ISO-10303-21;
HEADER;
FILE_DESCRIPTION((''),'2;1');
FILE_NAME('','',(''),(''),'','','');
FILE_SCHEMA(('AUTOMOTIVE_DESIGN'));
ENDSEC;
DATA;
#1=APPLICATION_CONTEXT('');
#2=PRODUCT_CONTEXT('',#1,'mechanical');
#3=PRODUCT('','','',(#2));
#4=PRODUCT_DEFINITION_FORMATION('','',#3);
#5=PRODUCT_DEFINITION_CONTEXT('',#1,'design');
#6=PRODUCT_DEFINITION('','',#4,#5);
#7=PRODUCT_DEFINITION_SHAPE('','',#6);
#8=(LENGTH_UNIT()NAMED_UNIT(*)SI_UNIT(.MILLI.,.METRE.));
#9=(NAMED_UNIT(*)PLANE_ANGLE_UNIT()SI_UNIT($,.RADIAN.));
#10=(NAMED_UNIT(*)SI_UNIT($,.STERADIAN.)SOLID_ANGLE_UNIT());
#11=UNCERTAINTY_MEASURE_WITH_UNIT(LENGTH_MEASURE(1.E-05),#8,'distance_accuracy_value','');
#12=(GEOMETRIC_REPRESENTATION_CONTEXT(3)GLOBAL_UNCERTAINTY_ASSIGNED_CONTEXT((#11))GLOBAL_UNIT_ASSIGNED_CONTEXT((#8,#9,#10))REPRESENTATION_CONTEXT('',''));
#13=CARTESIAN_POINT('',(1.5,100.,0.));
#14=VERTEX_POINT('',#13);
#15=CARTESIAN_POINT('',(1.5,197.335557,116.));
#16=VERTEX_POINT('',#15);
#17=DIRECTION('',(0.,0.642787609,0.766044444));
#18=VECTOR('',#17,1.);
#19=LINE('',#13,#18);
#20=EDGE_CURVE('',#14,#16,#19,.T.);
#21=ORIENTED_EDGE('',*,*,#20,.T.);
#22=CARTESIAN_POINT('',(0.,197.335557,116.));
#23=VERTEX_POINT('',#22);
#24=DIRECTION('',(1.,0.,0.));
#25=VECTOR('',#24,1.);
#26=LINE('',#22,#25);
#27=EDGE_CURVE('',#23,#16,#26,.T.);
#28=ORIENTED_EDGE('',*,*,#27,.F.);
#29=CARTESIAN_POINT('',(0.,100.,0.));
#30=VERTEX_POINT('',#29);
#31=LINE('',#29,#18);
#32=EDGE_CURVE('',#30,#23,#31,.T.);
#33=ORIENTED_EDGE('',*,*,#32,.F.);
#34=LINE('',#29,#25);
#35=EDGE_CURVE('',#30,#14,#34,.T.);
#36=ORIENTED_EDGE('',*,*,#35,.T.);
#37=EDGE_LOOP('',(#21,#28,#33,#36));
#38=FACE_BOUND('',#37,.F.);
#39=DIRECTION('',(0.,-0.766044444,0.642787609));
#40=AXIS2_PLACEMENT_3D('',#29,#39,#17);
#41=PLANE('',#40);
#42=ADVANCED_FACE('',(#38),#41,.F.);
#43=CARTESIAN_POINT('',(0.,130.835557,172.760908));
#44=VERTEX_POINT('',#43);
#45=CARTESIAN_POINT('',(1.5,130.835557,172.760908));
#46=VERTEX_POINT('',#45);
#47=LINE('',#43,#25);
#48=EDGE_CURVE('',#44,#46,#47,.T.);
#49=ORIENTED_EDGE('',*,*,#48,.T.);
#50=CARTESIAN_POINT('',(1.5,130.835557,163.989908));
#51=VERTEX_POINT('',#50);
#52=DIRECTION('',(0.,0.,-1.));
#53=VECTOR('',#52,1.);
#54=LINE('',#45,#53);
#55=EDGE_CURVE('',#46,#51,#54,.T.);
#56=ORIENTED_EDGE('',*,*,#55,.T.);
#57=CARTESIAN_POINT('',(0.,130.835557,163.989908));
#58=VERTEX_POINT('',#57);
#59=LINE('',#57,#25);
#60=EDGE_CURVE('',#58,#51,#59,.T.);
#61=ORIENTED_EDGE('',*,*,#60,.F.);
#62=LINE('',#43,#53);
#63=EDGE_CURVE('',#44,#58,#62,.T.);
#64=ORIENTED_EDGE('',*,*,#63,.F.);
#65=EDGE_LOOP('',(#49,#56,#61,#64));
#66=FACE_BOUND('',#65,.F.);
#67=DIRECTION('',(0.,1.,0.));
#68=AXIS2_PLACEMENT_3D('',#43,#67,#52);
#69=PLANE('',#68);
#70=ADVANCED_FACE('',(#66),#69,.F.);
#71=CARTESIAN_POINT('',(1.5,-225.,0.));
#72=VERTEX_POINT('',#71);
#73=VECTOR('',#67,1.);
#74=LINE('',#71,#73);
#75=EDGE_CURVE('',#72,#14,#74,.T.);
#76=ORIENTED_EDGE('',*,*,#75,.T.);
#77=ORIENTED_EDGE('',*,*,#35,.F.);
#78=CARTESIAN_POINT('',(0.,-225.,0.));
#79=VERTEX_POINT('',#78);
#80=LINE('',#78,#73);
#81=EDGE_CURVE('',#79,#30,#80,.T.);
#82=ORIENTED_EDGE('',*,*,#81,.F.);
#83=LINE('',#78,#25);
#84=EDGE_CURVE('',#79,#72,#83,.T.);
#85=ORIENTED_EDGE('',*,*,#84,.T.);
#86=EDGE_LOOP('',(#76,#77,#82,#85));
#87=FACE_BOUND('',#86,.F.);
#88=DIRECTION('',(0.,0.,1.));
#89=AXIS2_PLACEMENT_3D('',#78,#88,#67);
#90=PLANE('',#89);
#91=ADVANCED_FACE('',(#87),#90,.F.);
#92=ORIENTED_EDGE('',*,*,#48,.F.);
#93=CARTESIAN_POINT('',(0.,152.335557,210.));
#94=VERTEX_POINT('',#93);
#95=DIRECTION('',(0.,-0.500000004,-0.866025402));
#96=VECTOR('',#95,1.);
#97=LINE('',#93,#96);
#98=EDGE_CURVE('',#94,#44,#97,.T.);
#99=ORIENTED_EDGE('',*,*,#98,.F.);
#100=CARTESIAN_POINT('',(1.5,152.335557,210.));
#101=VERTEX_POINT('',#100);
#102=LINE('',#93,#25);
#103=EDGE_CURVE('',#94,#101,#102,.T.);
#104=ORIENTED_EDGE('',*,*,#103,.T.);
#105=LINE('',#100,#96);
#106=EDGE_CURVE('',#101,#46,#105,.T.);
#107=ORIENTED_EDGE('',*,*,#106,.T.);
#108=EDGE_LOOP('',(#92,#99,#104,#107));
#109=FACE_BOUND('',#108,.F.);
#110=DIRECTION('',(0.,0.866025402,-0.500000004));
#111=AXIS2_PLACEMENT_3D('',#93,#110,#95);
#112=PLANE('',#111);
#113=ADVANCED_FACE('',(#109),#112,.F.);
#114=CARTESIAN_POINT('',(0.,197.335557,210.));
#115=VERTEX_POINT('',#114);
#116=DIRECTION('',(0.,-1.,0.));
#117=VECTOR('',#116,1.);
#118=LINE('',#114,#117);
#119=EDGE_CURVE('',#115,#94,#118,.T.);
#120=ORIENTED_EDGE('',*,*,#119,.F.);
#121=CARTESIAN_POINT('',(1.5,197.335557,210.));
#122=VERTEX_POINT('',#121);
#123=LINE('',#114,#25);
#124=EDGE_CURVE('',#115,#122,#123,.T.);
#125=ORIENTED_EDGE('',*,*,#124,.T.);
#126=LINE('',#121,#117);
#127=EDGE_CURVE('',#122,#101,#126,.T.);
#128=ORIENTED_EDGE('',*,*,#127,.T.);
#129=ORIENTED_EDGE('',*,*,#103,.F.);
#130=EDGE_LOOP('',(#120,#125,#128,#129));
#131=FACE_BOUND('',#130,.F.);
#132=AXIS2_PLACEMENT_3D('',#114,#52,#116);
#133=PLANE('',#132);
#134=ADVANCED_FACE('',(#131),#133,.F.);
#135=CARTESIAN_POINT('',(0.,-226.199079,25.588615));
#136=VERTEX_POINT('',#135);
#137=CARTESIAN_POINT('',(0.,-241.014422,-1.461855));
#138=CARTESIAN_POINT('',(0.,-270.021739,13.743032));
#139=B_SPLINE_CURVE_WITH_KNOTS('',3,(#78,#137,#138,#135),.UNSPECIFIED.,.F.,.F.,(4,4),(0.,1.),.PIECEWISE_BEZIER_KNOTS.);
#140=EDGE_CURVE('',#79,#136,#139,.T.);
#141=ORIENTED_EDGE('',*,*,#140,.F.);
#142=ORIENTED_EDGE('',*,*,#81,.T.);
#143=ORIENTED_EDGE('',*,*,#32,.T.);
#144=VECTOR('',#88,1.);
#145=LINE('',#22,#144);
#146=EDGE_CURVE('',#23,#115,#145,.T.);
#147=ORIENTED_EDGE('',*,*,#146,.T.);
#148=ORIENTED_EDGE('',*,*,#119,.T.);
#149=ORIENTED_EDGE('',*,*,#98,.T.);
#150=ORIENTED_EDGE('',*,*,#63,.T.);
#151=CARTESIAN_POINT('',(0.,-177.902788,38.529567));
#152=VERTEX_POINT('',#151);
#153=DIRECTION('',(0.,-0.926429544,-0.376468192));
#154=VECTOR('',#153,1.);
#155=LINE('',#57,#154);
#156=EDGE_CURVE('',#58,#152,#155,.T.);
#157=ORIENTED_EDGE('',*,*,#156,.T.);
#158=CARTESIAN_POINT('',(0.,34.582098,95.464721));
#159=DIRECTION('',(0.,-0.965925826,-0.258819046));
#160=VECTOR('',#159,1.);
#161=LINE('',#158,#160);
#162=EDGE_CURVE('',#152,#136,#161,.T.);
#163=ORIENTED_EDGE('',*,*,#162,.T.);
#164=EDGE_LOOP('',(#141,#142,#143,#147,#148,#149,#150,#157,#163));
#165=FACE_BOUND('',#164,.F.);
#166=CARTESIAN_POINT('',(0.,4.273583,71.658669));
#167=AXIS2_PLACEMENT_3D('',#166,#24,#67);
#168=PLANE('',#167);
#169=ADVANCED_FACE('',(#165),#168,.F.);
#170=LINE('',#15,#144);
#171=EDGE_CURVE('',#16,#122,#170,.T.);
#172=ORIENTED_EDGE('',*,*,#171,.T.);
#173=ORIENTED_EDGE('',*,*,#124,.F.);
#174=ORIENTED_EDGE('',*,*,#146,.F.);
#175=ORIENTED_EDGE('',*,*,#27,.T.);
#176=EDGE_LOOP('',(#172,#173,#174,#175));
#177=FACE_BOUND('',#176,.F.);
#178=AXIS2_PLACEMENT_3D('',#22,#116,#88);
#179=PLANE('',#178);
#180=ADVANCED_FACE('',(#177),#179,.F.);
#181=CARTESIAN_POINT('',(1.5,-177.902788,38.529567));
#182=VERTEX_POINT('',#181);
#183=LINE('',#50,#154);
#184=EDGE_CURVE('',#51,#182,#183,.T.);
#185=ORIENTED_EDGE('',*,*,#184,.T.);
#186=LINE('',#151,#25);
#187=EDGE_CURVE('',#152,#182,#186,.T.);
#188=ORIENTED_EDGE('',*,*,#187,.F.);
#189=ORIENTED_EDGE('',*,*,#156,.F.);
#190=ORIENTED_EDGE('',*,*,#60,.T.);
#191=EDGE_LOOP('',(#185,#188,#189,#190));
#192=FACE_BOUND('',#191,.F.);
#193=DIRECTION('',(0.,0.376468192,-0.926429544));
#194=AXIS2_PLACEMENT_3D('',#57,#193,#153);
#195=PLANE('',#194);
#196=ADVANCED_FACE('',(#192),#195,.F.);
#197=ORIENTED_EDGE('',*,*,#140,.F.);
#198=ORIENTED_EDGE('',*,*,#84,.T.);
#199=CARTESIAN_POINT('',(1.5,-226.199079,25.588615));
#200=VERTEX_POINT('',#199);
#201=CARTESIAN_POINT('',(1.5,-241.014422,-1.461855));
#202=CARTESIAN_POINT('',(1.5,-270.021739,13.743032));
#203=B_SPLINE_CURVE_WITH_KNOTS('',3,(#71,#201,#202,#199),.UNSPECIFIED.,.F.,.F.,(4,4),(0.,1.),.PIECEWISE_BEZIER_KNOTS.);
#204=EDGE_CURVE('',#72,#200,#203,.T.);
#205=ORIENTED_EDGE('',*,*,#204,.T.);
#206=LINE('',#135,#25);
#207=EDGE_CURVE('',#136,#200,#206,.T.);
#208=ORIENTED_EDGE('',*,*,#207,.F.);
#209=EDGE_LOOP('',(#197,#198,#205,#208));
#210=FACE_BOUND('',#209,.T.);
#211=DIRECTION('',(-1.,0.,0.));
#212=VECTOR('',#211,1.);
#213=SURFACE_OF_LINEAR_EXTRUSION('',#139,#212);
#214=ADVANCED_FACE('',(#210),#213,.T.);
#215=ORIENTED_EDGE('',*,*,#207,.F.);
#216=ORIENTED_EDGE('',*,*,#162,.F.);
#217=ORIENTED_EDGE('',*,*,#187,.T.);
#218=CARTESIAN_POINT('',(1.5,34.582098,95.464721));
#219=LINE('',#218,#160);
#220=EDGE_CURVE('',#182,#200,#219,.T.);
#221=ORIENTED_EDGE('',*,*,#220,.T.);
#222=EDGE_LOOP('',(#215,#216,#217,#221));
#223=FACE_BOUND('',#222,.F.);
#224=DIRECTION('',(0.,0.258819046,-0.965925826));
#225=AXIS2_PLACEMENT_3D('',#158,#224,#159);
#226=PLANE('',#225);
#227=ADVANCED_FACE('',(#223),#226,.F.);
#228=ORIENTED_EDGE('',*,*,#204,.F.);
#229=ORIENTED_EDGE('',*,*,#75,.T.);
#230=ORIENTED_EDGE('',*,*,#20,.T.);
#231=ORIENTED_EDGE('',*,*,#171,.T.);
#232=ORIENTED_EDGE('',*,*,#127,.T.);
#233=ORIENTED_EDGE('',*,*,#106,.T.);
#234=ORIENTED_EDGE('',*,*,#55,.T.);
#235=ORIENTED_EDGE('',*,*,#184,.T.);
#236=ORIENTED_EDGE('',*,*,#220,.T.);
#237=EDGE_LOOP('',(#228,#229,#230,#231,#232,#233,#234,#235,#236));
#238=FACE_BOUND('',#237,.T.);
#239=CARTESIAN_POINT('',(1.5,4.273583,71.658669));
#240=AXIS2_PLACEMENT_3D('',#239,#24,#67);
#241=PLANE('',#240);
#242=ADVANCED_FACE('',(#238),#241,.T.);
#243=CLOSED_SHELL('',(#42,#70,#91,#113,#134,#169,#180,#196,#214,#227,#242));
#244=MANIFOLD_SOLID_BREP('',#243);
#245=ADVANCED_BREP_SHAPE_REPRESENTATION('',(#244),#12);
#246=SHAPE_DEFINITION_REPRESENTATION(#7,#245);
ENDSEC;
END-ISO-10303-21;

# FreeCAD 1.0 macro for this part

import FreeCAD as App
import Part
import Sketcher

V = App.Vector
Q = App.Units.Quantity

doc = App.newDocument("Part")
body = doc.addObject("PartDesign::Body", "Body")

# Sketch on YZ plane
sketch1 = body.newObject("Sketcher::SketchObject", "Sketch")
sketch1.AttachmentSupport = (doc.getObject("YZ_Plane"), [""])
sketch1.MapMode = "FlatFace"
sketch1.addGeometry(Part.LineSegment(V(130.835557, 163.892767, 0), V(34.582098, 103.74693, 0)), False)
sketch1.addGeometry(Part.LineSegment(V(34.582098, 103.74693, 0), V(34.582098, 95.464721, 0)), False)
sketch1.addGeometry(Part.LineSegment(V(34.582098, 95.464721, 0), V(-226.199079, 25.588615, 0)), False)
sketch1.addGeometry(Part.BSplineCurve([V(-225, 0, 0), V(-241.014422, -1.461855, 0), V(-270.021739, 13.743032, 0), V(-226.199079, 25.588615, 0)], [4, 4], [0, 1], False, 3, [1, 1, 1, 1], False), False)
sketch1.addGeometry(Part.LineSegment(V(-225, 0, 0), V(100, 0, 0)), False)
sketch1.addGeometry(Part.LineSegment(V(100, 0, 0), V(197.335557, 116, 0)), False)
sketch1.addGeometry(Part.LineSegment(V(197.335557, 116, 0), V(197.335557, 210, 0)), False)
sketch1.addGeometry(Part.LineSegment(V(197.335557, 210, 0), V(152.335557, 210, 0)), False)
sketch1.addGeometry(Part.LineSegment(V(152.335557, 210, 0), V(130.835557, 172.760908, 0)), False)
sketch1.addGeometry(Part.LineSegment(V(130.835557, 172.760908, 0), V(130.835557, 163.892767, 0)), False)
sketch1.addConstraint(Sketcher.Constraint("Block", 3))
sketch1.addConstraint(Sketcher.Constraint("Coincident", 0, 2, 1, 1))
sketch1.addConstraint(Sketcher.Constraint("Coincident", 1, 2, 2, 1))
sketch1.addConstraint(Sketcher.Constraint("Coincident", 2, 2, 3, 2))
sketch1.addConstraint(Sketcher.Constraint("Coincident", 3, 1, 4, 1))
sketch1.addConstraint(Sketcher.Constraint("Coincident", 4, 2, 5, 1))
sketch1.addConstraint(Sketcher.Constraint("Coincident", 5, 2, 6, 1))
sketch1.addConstraint(Sketcher.Constraint("Coincident", 6, 2, 7, 1))
sketch1.addConstraint(Sketcher.Constraint("Coincident", 7, 2, 8, 1))
sketch1.addConstraint(Sketcher.Constraint("Coincident", 8, 2, 9, 1))
sketch1.addConstraint(Sketcher.Constraint("Coincident", 9, 2, 0, 1))
sketch1.addConstraint(Sketcher.Constraint("Vertical", 1))
sketch1.addConstraint(Sketcher.Constraint("Horizontal", 4))
sketch1.addConstraint(Sketcher.Constraint("Vertical", 6))
sketch1.addConstraint(Sketcher.Constraint("Horizontal", 7))
sketch1.addConstraint(Sketcher.Constraint("Vertical", 9))
sketch1.addConstraint(Sketcher.Constraint("DistanceX", 4, 1, 4, 2, Q("325 mm")))
sketch1.addConstraint(Sketcher.Constraint("DistanceX", 7, 2, 7, 1, Q("45 mm")))
sketch1.addConstraint(Sketcher.Constraint("DistanceY", 6, 1, 6, 2, Q("94 mm")))
sketch1.addConstraint(Sketcher.Constraint("Distance", 8, Q("43 mm")))
sketch1.addConstraint(Sketcher.Constraint("DistanceY", -1, 1, 5, 2, Q("116 mm")))
sketch1.addConstraint(Sketcher.Constraint("Distance", 0, Q("113.5 mm")))
sketch1.addConstraint(Sketcher.Constraint("DistanceX", 8, 2, 7, 2, Q("21.5 mm")))
sketch1.addConstraint(Sketcher.Constraint("DistanceY", 1, 2, 1, 1, Q("8.282209 mm")))
sketch1.addConstraint(Sketcher.Constraint("DistanceY", 9, 2, 9, 1, Q("8.868141 mm")))
sketch1.addConstraint(Sketcher.Constraint("DistanceX", -1, 1, 0, 2, Q("34.582098 mm")))
sketch1.addConstraint(Sketcher.Constraint("Distance", 2, Q("269.980541 mm")))
pad1 = body.newObject("PartDesign::Pad", "Pad")
pad1.Profile = sketch1
pad1.Length = 1.5

# Sketch on YZ plane
sketch2 = body.newObject("Sketcher::SketchObject", "Sketch001")
sketch2.AttachmentSupport = (doc.getObject("YZ_Plane"), [""])
sketch2.MapMode = "FlatFace"
sketch2.addGeometry(Part.LineSegment(V(130.835557, 163.989908, 0), V(-177.902788, 38.529567, 0)), False)
sketch2.addGeometry(Part.LineSegment(V(-177.902788, 38.529567, 0), V(-226.199079, 25.588615, 0)), False)
sketch2.addGeometry(Part.BSplineCurve([V(-225, 0, 0), V(-241.014422, -1.461855, 0), V(-270.021739, 13.743032, 0), V(-226.199079, 25.588615, 0)], [4, 4], [0, 1], False, 3, [1, 1, 1, 1], False), False)
sketch2.addGeometry(Part.LineSegment(V(-225, 0, 0), V(100, 0, 0)), False)
sketch2.addGeometry(Part.LineSegment(V(100, 0, 0), V(197.335557, 116, 0)), False)
sketch2.addGeometry(Part.LineSegment(V(197.335557, 116, 0), V(197.335557, 210, 0)), False)
sketch2.addGeometry(Part.LineSegment(V(197.335557, 210, 0), V(152.335557, 210, 0)), False)
sketch2.addGeometry(Part.LineSegment(V(152.335557, 210, 0), V(130.835557, 172.760908, 0)), False)
sketch2.addGeometry(Part.LineSegment(V(130.835557, 172.760908, 0), V(130.835557, 163.989908, 0)), False)
sketch2.addConstraint(Sketcher.Constraint("Block", 2))
sketch2.addConstraint(Sketcher.Constraint("Coincident", 0, 2, 1, 1))
sketch2.addConstraint(Sketcher.Constraint("Coincident", 1, 2, 2, 2))
sketch2.addConstraint(Sketcher.Constraint("Coincident", 2, 1, 3, 1))
sketch2.addConstraint(Sketcher.Constraint("Coincident", 3, 2, 4, 1))
sketch2.addConstraint(Sketcher.Constraint("Coincident", 4, 2, 5, 1))
sketch2.addConstraint(Sketcher.Constraint("Coincident", 5, 2, 6, 1))
sketch2.addConstraint(Sketcher.Constraint("Coincident", 6, 2, 7, 1))
sketch2.addConstraint(Sketcher.Constraint("Coincident", 7, 2, 8, 1))
sketch2.addConstraint(Sketcher.Constraint("Coincident", 8, 2, 0, 1))
sketch2.addConstraint(Sketcher.Constraint("Horizontal", 3))
sketch2.addConstraint(Sketcher.Constraint("Vertical", 5))
sketch2.addConstraint(Sketcher.Constraint("Horizontal", 6))
sketch2.addConstraint(Sketcher.Constraint("Vertical", 8))
sketch2.addConstraint(Sketcher.Constraint("DistanceX", 3, 1, 3, 2, Q("325 mm")))
sketch2.addConstraint(Sketcher.Constraint("DistanceX", 6, 2, 6, 1, Q("45 mm")))
sketch2.addConstraint(Sketcher.Constraint("DistanceY", 5, 1, 5, 2, Q("94 mm")))
sketch2.addConstraint(Sketcher.Constraint("Distance", 1, Q("50 mm")))
sketch2.addConstraint(Sketcher.Constraint("Distance", 7, Q("43 mm")))
sketch2.addConstraint(Sketcher.Constraint("DistanceY", -1, 1, 4, 2, Q("116 mm")))
sketch2.addConstraint(Sketcher.Constraint("DistanceX", 7, 2, 6, 2, Q("21.5 mm")))
sketch2.addConstraint(Sketcher.Constraint("DistanceY", 8, 2, 8, 1, Q("8.771 mm")))
sketch2.addConstraint(Sketcher.Constraint("Distance", 0, Q("333.256152 mm")))
sketch2.addConstraint(Sketcher.Constraint("DistanceX", 1, 2, 0, 2, Q("48.296291 mm")))
pad2 = body.newObject("PartDesign::Pad", "Pad001")
pad2.Profile = sketch2
pad2.Length = 1.5

doc.recompute()
